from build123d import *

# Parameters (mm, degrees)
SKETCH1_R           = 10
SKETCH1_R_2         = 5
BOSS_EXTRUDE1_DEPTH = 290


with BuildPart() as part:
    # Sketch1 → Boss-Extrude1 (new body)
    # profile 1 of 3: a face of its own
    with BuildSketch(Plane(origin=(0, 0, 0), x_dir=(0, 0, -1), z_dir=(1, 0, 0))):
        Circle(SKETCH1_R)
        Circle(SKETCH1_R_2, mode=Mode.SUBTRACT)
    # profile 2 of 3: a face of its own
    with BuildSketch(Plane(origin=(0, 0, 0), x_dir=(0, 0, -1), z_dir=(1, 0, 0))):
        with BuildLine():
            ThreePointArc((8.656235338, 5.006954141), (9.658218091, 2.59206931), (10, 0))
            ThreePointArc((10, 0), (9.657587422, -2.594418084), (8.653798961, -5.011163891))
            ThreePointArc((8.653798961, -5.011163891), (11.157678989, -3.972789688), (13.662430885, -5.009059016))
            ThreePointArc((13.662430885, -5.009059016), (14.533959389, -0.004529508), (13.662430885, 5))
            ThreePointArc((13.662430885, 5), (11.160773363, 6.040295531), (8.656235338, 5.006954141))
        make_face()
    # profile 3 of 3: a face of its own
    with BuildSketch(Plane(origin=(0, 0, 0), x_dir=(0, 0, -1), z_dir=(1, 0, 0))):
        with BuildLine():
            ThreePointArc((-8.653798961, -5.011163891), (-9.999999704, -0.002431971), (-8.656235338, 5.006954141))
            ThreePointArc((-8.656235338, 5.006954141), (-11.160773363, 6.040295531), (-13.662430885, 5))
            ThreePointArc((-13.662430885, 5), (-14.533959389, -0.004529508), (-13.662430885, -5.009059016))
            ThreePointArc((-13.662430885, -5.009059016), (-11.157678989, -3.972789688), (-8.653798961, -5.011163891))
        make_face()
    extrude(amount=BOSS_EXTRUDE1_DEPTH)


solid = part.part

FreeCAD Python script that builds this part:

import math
import FreeCAD as App
import Part
import Sketcher

doc = App.newDocument("Part")
params = doc.addObject("Spreadsheet::Sheet", "Params")
for row, (alias, value) in enumerate([
    ("sketch1_diameter", "10 mm"),
    ("sketch1_radius", "10 mm"),
    ("pad1_length", "290 mm"),
], start=1):
    params.set(f"A{row}", alias)
    params.set(f"B{row}", "=" + value)
    params.setAlias(f"B{row}", alias)

body = doc.addObject("PartDesign::Body", "Body")

sketch1 = doc.addObject("Sketcher::SketchObject", "Sketch")
body.addObject(sketch1)
sketch1.AttachmentSupport = (doc.YZ_Plane, [""])
sketch1.MapMode = "FlatFace"
sketch1.addGeometry([
    Part.ArcOfCircle(Part.Circle(App.Vector(0, 0, 0), App.Vector(0, 0, 1), 10), math.radians(-60), math.radians(60)),
    Part.ArcOfCircle(Part.Circle(App.Vector(2.5, 11.2, 0), App.Vector(0, 0, 1), 3.5), math.radians(-45), math.radians(45)),
    Part.ArcOfCircle(Part.Circle(App.Vector(0, -0.3, 0), App.Vector(0, 0, 1), 14.8), math.radians(70), math.radians(110)),
    Part.ArcOfCircle(Part.Circle(App.Vector(-7.5, 11.2, 0), App.Vector(0, 0, 1), 3.5), math.radians(-45), math.radians(45)),
    Part.ArcOfCircle(Part.Circle(App.Vector(0, 0, 0), App.Vector(0, 0, 1), 10), math.radians(120), math.radians(240)),
    Part.ArcOfCircle(Part.Circle(App.Vector(-7.5, -11.2, 0), App.Vector(0, 0, 1), 3.5), math.radians(-45), math.radians(45)),
    Part.ArcOfCircle(Part.Circle(App.Vector(0, 0.3, 0), App.Vector(0, 0, 1), 14.8), math.radians(-110), math.radians(-70)),
    Part.ArcOfCircle(Part.Circle(App.Vector(2.5, -11.2, 0), App.Vector(0, 0, 1), 3.5), math.radians(-45), math.radians(45)),
    Part.Circle(App.Vector(0, 0, 0), App.Vector(0, 0, 1), 5),
], False)
sketch1.addConstraint([
    Sketcher.Constraint("Coincident", 0, 2, 1, 1),
    Sketcher.Constraint("Coincident", 1, 2, 2, 1),
    Sketcher.Constraint("Coincident", 2, 2, 3, 2),
    Sketcher.Constraint("Coincident", 3, 1, 4, 1),
    Sketcher.Constraint("Coincident", 4, 2, 5, 2),
    Sketcher.Constraint("Coincident", 5, 1, 6, 1),
    Sketcher.Constraint("Coincident", 6, 2, 7, 1),
    Sketcher.Constraint("Coincident", 7, 2, 0, 1),
    Sketcher.Constraint("Coincident", 0, 3, -1, 1),
    Sketcher.Constraint("Coincident", 4, 3, -1, 1),
    Sketcher.Constraint("Coincident", 8, 3, -1, 1),
    Sketcher.Constraint("Equal", 0, 4),
    Sketcher.Constraint("Equal", 3, 5),
    Sketcher.Constraint("Equal", 2, 6),
    Sketcher.Constraint("Equal", 1, 7),
    Sketcher.Constraint("Symmetric", 3, 3, 5, 3, -1),
    Sketcher.Constraint("Symmetric", 2, 3, 6, 3, -1),
    Sketcher.Constraint("Symmetric", 1, 3, 7, 3, -1),
    Sketcher.Constraint("Horizontal", 1, 2, 2, 2),
    Sketcher.Constraint("Diameter", 8, 10.0),
    Sketcher.Constraint("Radius", 0, 10.0),
    Sketcher.Constraint("DistanceX", -1, 1, 1, 2, 5.0),
    Sketcher.Constraint("Radius", 2, 14.80438),
    Sketcher.Constraint("Radius", 1, 3.539915),
    Sketcher.Constraint("Radius", 3, 3.541638),
    Sketcher.Constraint("DistanceY", -1, 1, 3, 1, 8.653799),
    Sketcher.Constraint("DistanceX", 2, 3, -1, 1, 0.00453),
    Sketcher.Constraint("DistanceY", 2, 3, -1, 1, 0.27042),
    Sketcher.Constraint("DistanceX", 3, 3, 1, 3, 10.014811),
])
sketch1.setExpression("Constraints[19]", "Params.sketch1_diameter")
sketch1.setExpression("Constraints[20]", "Params.sketch1_radius")
pad1 = doc.addObject("PartDesign::Pad", "Pad")
body.addObject(pad1)
pad1.Profile = sketch1
pad1.setExpression("Length", "Params.pad1_length")

doc.recompute()
